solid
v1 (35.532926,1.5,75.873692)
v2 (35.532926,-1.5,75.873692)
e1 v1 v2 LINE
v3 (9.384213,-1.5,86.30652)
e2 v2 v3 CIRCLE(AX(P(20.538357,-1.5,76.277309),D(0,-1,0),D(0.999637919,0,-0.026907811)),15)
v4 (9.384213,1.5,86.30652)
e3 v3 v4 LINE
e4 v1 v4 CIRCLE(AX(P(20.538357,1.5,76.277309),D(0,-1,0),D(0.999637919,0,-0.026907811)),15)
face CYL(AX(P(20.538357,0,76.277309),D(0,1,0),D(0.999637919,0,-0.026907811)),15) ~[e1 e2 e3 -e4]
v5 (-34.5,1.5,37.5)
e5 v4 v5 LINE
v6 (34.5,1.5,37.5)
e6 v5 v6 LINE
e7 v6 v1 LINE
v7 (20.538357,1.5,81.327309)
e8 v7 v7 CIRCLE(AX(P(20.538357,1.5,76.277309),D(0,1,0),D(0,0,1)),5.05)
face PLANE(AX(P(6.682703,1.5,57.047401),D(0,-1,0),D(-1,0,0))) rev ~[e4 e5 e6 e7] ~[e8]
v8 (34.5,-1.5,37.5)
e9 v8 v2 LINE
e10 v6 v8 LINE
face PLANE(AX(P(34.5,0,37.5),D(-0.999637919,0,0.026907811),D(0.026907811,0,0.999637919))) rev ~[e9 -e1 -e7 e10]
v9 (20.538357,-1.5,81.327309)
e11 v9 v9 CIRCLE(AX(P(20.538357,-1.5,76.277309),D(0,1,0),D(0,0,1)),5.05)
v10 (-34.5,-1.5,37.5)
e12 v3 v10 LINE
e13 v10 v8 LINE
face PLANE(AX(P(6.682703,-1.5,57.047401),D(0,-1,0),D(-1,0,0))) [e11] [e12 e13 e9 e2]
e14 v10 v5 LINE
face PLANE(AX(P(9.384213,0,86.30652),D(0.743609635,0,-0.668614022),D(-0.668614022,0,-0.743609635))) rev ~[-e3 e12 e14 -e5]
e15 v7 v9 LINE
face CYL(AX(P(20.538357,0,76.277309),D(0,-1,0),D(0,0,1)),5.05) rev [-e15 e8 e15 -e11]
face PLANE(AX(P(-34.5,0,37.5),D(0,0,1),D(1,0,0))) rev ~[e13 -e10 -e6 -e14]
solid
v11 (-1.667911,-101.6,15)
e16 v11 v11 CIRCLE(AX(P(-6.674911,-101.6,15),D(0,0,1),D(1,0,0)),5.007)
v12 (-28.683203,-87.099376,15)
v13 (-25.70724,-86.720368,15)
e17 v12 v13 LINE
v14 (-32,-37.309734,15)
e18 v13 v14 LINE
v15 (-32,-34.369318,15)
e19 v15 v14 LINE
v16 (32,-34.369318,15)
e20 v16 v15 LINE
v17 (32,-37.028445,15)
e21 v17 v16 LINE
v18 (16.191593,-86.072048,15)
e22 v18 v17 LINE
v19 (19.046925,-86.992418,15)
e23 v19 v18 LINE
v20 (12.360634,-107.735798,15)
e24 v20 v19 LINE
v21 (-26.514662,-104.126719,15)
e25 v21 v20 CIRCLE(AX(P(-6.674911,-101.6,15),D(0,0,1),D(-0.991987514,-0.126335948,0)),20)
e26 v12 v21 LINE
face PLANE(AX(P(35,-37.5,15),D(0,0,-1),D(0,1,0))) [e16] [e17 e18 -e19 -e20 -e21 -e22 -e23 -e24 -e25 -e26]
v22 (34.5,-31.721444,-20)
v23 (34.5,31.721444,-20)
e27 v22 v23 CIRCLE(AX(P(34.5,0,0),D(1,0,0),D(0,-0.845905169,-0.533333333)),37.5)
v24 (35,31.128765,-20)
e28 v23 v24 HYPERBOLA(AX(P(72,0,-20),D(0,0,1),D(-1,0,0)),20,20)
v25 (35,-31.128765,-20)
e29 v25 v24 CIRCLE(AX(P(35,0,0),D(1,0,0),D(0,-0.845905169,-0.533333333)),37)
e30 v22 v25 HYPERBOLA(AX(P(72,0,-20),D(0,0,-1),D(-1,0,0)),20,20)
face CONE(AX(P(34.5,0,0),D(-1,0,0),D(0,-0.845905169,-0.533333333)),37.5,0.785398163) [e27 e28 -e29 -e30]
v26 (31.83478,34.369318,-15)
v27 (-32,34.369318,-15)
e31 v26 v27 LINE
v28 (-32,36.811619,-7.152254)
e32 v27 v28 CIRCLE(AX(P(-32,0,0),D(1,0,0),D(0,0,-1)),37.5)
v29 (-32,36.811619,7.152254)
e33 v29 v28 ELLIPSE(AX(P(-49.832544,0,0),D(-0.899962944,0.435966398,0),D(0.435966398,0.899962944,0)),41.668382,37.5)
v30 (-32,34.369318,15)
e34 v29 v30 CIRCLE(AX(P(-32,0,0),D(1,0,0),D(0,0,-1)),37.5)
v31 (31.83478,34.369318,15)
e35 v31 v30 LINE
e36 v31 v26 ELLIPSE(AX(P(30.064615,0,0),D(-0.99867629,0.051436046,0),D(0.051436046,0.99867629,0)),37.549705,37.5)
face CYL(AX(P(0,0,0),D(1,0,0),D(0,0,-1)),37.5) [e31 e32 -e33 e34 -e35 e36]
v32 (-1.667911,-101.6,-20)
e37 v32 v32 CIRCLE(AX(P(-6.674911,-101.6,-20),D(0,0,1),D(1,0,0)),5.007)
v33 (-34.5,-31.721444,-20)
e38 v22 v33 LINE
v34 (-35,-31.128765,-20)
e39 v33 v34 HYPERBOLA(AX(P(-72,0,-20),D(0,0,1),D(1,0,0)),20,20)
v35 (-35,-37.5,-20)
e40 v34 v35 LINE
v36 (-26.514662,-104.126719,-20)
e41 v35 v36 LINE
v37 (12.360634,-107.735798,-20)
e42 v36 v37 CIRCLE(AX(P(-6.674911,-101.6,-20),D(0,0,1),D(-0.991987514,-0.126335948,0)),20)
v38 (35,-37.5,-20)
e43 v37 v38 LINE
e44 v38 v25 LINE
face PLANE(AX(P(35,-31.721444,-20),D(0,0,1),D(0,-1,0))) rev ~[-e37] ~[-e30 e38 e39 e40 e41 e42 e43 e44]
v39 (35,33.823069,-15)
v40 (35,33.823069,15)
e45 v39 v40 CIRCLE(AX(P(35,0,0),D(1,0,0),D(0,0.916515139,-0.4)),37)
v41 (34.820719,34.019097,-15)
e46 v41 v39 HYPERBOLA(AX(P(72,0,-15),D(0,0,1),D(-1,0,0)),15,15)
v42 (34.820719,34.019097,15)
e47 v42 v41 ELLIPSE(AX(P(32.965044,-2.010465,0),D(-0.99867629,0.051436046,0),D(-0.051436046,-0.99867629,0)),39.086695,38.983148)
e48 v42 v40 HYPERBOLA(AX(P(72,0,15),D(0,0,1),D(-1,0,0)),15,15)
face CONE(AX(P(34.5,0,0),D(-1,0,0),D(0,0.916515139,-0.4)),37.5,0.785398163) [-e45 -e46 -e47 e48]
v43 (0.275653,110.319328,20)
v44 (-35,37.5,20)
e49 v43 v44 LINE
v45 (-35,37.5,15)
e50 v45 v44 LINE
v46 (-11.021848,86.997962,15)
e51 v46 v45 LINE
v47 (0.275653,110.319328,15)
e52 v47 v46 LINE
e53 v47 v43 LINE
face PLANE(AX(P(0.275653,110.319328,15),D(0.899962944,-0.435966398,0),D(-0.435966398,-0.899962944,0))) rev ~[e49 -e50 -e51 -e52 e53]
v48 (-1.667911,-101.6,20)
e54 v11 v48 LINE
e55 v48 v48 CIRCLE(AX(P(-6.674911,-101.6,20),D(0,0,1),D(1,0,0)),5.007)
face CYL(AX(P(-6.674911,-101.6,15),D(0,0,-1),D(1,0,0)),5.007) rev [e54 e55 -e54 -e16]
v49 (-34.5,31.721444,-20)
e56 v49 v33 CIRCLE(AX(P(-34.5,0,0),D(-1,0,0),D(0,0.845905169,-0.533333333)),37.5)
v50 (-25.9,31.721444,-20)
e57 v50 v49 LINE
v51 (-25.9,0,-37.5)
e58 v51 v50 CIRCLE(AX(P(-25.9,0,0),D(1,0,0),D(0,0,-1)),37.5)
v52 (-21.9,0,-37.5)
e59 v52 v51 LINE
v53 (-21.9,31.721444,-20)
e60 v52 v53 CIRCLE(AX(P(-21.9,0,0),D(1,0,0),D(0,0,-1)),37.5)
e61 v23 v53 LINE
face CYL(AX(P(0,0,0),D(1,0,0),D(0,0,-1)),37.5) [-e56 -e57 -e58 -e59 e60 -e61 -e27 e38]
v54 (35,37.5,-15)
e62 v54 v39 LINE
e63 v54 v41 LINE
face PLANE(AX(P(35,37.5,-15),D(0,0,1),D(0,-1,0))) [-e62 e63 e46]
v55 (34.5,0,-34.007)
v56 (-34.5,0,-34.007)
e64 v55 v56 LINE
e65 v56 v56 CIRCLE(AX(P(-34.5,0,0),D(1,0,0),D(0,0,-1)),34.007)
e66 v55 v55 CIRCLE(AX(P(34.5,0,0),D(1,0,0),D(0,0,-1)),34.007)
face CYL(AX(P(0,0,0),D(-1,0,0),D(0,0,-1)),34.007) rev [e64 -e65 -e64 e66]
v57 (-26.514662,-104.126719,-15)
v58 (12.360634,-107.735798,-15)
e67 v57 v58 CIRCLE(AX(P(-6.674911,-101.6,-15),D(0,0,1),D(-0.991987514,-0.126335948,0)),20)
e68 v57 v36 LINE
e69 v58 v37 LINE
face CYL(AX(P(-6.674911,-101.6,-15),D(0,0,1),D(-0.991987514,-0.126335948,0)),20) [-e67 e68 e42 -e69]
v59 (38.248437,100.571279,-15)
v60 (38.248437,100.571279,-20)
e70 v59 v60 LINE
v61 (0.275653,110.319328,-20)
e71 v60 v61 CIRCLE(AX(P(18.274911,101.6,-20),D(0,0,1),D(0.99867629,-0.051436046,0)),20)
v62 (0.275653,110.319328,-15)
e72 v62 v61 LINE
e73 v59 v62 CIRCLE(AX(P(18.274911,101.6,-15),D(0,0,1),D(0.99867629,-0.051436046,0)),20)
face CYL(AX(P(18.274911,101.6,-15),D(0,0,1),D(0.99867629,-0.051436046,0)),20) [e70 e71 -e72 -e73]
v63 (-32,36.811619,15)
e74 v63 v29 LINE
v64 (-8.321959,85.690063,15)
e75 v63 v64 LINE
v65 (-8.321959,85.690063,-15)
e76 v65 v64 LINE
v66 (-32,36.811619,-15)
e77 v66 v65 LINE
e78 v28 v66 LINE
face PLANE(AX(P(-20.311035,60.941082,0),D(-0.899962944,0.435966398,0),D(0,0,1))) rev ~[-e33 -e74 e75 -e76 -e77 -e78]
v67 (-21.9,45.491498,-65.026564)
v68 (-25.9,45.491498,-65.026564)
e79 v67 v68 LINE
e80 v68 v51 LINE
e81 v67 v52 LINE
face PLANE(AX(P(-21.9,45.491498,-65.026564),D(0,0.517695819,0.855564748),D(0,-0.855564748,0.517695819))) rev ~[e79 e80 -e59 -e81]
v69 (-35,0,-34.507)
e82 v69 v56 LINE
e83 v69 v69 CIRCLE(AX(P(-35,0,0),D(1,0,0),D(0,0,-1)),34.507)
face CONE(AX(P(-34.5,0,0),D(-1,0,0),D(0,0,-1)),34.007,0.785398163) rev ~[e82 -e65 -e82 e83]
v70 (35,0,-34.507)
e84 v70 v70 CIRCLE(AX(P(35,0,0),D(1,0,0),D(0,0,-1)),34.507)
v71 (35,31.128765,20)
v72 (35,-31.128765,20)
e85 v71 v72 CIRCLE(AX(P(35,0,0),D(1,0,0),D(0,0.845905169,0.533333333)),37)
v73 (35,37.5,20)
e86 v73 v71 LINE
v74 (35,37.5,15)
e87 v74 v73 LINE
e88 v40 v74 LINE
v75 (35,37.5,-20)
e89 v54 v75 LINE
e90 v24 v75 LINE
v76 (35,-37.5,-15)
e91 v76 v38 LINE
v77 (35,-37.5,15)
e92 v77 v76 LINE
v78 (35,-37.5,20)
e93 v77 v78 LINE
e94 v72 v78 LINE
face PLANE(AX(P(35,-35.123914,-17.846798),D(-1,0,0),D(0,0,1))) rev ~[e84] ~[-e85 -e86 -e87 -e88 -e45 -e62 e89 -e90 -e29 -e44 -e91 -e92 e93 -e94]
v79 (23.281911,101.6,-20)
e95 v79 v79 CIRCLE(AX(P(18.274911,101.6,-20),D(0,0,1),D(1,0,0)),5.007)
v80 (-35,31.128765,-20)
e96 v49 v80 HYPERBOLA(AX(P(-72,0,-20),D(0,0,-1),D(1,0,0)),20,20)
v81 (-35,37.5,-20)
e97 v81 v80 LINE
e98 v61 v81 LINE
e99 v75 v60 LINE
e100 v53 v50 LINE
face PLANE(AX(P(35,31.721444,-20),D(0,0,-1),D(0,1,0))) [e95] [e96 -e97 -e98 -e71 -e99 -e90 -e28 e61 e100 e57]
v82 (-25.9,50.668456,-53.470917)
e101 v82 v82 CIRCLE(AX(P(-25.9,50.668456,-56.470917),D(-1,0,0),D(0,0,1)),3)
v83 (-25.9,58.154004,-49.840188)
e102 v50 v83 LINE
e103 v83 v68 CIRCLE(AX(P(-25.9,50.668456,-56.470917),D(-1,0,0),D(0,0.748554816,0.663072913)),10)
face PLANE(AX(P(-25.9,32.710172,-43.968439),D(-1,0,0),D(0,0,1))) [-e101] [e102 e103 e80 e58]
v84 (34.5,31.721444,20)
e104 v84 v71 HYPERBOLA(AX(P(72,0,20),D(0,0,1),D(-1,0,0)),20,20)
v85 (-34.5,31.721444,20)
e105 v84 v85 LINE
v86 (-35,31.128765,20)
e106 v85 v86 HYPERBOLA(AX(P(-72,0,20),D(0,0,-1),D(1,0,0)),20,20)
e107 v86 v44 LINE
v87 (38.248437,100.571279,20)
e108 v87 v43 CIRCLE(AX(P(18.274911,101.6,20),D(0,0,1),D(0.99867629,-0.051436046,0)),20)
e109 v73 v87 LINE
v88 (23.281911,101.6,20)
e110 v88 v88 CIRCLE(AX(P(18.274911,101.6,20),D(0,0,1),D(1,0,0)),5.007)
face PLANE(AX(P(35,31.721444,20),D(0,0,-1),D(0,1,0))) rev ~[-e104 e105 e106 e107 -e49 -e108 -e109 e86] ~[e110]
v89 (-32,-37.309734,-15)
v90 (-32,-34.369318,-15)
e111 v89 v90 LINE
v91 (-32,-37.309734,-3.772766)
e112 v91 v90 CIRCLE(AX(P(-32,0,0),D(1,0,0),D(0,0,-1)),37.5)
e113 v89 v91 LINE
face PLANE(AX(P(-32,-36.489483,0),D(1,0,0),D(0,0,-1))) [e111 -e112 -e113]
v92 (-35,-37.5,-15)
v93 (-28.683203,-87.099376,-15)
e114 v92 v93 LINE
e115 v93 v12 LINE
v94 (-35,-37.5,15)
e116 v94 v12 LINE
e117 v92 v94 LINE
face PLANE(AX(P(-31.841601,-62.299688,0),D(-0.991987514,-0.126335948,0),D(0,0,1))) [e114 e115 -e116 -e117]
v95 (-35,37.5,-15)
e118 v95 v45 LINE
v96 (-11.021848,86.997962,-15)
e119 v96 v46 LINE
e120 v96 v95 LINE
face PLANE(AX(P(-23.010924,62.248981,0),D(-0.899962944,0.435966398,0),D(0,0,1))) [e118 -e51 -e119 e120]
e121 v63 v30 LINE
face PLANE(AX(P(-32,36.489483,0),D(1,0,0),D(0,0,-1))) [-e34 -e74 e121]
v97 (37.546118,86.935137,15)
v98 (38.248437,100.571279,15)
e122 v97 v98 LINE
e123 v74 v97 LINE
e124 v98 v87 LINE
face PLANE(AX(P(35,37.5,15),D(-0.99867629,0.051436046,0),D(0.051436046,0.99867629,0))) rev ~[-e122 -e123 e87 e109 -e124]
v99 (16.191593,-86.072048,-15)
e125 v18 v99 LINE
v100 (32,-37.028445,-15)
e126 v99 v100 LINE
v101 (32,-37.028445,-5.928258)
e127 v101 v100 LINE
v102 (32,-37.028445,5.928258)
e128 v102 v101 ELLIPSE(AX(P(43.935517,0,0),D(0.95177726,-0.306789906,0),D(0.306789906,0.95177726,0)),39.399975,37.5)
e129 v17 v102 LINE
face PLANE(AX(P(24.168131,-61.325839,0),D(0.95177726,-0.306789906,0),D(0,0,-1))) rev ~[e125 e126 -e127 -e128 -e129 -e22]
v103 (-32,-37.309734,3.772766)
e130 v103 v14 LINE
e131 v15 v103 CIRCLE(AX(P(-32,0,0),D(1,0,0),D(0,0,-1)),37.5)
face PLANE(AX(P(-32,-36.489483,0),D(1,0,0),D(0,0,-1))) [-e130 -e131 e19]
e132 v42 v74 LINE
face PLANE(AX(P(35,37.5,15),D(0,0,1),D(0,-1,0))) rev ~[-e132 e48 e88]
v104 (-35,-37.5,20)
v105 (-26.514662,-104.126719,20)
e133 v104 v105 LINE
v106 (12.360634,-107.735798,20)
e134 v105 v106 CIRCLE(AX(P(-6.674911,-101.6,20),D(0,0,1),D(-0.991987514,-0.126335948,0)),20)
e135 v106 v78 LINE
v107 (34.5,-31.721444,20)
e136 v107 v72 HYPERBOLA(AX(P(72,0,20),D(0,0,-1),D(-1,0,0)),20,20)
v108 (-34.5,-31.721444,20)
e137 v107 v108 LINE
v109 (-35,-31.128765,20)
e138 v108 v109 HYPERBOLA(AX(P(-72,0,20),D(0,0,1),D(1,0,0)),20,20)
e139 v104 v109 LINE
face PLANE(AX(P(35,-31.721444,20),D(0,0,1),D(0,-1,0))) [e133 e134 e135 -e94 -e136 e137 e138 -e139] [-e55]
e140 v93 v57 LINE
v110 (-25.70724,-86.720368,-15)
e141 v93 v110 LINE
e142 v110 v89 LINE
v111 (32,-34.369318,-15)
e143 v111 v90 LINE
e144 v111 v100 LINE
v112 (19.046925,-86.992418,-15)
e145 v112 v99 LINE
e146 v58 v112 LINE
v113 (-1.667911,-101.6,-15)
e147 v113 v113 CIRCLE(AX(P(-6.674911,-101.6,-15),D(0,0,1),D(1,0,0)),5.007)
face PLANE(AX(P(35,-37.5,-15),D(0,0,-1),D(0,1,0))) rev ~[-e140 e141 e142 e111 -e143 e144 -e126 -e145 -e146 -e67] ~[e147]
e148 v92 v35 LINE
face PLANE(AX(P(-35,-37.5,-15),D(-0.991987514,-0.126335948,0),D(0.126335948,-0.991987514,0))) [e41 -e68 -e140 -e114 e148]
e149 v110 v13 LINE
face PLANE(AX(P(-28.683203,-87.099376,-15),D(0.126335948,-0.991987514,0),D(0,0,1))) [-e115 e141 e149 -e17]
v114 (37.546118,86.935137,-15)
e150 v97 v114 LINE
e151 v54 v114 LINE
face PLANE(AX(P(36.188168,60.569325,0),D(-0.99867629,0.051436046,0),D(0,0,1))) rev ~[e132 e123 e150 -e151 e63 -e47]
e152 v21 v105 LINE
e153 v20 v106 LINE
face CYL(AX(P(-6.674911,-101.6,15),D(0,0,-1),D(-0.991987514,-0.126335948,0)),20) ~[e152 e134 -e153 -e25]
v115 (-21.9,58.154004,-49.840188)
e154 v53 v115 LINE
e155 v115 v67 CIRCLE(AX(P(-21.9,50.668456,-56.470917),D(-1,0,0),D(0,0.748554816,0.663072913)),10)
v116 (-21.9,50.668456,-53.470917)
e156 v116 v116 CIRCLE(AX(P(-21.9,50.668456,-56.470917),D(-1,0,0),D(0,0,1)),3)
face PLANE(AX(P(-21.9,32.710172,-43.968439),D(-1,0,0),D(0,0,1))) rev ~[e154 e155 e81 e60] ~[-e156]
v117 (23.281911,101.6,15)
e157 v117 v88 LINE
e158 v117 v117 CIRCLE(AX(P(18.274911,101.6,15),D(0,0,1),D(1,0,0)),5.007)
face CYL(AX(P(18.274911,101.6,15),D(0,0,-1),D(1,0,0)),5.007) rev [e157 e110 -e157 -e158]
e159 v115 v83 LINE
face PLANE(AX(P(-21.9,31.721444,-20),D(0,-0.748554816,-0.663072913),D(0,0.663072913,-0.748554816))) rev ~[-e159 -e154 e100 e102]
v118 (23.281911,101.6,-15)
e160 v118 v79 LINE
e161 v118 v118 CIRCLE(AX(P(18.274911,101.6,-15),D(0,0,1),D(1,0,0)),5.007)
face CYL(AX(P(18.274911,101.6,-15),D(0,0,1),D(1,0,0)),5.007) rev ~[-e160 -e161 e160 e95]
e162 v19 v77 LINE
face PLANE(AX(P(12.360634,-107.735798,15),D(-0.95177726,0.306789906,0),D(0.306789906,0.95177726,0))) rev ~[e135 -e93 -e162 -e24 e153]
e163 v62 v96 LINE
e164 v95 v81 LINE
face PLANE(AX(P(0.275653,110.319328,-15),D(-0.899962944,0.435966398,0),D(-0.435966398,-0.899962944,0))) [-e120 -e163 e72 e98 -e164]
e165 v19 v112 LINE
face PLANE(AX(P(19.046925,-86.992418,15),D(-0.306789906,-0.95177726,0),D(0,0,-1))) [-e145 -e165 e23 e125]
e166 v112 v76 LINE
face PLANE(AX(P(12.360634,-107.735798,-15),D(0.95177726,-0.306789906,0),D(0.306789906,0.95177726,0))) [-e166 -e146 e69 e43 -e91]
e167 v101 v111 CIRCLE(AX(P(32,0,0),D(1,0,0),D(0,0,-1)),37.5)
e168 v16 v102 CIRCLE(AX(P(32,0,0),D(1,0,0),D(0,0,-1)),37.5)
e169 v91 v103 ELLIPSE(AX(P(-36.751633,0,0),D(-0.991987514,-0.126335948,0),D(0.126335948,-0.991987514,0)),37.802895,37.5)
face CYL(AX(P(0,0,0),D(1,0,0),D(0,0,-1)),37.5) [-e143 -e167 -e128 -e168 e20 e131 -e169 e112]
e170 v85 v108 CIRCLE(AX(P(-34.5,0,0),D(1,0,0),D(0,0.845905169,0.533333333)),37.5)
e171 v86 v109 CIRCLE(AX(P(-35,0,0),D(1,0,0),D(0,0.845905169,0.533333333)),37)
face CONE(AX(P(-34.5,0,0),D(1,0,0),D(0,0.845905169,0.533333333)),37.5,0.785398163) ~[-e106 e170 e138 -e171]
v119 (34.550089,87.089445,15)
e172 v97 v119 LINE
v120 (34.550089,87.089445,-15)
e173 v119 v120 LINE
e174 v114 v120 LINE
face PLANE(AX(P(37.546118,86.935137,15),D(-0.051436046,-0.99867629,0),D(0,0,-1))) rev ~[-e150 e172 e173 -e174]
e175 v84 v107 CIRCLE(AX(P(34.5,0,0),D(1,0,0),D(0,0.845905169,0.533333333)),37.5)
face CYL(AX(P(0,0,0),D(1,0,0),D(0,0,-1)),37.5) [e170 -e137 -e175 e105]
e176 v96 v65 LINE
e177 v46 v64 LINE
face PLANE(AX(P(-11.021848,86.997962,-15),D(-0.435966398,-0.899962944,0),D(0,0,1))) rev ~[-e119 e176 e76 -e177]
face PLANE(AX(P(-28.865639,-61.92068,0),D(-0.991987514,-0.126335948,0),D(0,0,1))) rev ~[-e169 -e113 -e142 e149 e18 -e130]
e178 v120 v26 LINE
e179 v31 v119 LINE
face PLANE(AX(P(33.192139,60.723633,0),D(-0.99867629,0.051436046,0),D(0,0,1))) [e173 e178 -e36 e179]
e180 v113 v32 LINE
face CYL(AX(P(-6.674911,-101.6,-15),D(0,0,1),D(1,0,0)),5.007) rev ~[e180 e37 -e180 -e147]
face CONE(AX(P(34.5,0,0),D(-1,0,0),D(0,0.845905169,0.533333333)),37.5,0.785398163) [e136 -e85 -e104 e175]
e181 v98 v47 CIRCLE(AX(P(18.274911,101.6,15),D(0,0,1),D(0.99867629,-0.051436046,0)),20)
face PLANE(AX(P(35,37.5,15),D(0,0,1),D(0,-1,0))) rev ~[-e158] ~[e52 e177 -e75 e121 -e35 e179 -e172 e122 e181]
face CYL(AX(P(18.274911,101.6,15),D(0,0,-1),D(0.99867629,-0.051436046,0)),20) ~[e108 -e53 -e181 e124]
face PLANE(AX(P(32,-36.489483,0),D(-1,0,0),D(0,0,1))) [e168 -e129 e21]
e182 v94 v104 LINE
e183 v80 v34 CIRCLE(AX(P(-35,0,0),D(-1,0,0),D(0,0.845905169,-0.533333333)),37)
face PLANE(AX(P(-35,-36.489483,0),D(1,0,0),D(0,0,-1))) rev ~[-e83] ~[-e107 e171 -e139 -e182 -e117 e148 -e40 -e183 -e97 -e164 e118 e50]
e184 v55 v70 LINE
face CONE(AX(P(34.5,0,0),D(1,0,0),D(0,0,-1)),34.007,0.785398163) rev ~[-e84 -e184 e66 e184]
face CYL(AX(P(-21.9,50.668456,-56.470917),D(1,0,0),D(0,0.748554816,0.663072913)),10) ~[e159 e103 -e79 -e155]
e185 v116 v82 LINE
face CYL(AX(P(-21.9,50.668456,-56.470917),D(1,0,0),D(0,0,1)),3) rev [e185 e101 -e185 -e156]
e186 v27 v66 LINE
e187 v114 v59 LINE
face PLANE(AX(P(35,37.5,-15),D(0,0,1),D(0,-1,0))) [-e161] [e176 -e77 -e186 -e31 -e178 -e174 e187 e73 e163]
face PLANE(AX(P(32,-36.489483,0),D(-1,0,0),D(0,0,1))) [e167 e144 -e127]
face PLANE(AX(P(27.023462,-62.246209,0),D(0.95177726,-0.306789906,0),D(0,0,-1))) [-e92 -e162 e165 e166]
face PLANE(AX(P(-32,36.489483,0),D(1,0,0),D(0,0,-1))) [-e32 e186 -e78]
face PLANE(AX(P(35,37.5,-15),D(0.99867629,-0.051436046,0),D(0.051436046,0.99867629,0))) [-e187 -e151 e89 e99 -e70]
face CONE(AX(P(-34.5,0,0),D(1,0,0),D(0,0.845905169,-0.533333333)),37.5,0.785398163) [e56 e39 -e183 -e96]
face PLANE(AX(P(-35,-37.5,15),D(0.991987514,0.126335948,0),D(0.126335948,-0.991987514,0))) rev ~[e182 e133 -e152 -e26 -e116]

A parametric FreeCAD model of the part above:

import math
import FreeCAD as App
import Part
import Sketcher
Q = App.Units.Quantity


def edges_at(feature, points):
    """Names of the edges that pass closest to the given points."""
    edges = feature.Shape.Edges
    near = lambda p: min(range(len(edges)), key=lambda i: edges[i].distToShape(Part.Vertex(*p))[0])
    return sorted({f"Edge{near(p) + 1}" for p in points})

doc = App.newDocument("Part")
body = doc.addObject("PartDesign::Body", "Body")

# Sketch on YZ plane
sketch1 = body.newObject("Sketcher::SketchObject", "Sketch")
sketch1.AttachmentSupport = (doc.getObject("YZ_Plane"), [""])
sketch1.MapMode = "FlatFace"
sketch1.addGeometry([
    Part.Circle(App.Vector(0, 0, 0), App.Vector(0, 0, 1), 38),
    Part.Circle(App.Vector(0, 0, 0), App.Vector(0, 0, 1), 34),
], False)
sketch1.addConstraint([
    Sketcher.Constraint("Coincident", 0, 3, -1, 1),
    Sketcher.Constraint("Coincident", 1, 3, -1, 1),
    Sketcher.Constraint("Diameter", 0, Q("75 mm")),
    Sketcher.Constraint("Diameter", 1, Q("68.014 mm")),
])
pad1 = body.newObject("PartDesign::Pad", "Pad")
pad1.Profile = sketch1
pad1.Length = 70
pad1.Midplane = True
body2 = doc.addObject("PartDesign::Body", "Body001")

# Sketch on XY plane
sketch2 = body2.newObject("Sketcher::SketchObject", "Sketch001")
sketch2.AttachmentSupport = (doc.getObject("XY_Plane001"), [""])
sketch2.MapMode = "FlatFace"
sketch2.AttachmentOffset = App.Placement(App.Vector(0, 0, 15), App.Rotation())
sketch2.addGeometry([
    Part.LineSegment(App.Vector(0, 110, 0), App.Vector(-35, 38, 0)),  # 0
    Part.LineSegment(App.Vector(-35, 38, 0), App.Vector(35, 38, 0)),  # 1
    Part.LineSegment(App.Vector(35, 38, 0), App.Vector(38, 101, 0)),  # 2
    Part.ArcOfCircle(Part.Circle(App.Vector(18, 102, 0), App.Vector(0, 0, 1), 20), math.radians(-3), math.radians(154)),  # 3
    Part.Circle(App.Vector(18, 102, 0), App.Vector(0, 0, 1), 5),  # 4
], False)
sketch2.addConstraint([
    Sketcher.Constraint("Coincident", 0, 2, 1, 1),
    Sketcher.Constraint("Coincident", 1, 2, 2, 1),
    Sketcher.Constraint("Tangent", 2, 2, 3, 1),
    Sketcher.Constraint("Tangent", 3, 2, 0, 1),
    Sketcher.Constraint("Horizontal", 1),
    Sketcher.Constraint("Coincident", 4, 3, 3, 3),
    Sketcher.Constraint("Radius", 3, Q("20 mm")),
    Sketcher.Constraint("DistanceX", 1, 1, 1, 2, Q("70 mm")),
    Sketcher.Constraint("Diameter", 4, Q("10.014 mm")),
    Sketcher.Constraint("DistanceX", 0, 2, -1, 1, Q("35 mm")),
    Sketcher.Constraint("DistanceY", -1, 1, 3, 3, Q("101.6 mm")),
    Sketcher.Constraint("DistanceY", -1, 1, 0, 2, Q("37.5 mm")),
    Sketcher.Constraint("DistanceX", -1, 1, 3, 3, Q("18.274911 mm")),
])
pad2 = body2.newObject("PartDesign::Pad", "Pad001")
pad2.Profile = sketch2
pad2.Length = 5
body3 = doc.addObject("PartDesign::Body", "Body002")

# Sketch on XY plane
sketch3 = body3.newObject("Sketcher::SketchObject", "Sketch002")
sketch3.AttachmentSupport = (doc.getObject("XY_Plane002"), [""])
sketch3.MapMode = "FlatFace"
sketch3.AttachmentOffset = App.Placement(App.Vector(0, 0, 15), App.Rotation())
sketch3.addGeometry([
    Part.LineSegment(App.Vector(-35, -38, 0), App.Vector(-27, -104, 0)),  # 0
    Part.ArcOfCircle(Part.Circle(App.Vector(-7, -102, 0), App.Vector(0, 0, 1), 20), math.radians(-173), math.radians(-18)),  # 1
    Part.LineSegment(App.Vector(12, -108, 0), App.Vector(35, -38, 0)),  # 2
    Part.LineSegment(App.Vector(35, -38, 0), App.Vector(-35, -38, 0)),  # 3
    Part.Circle(App.Vector(-7, -102, 0), App.Vector(0, 0, 1), 5),  # 4
], False)
sketch3.addConstraint([
    Sketcher.Constraint("Tangent", 0, 2, 1, 1),
    Sketcher.Constraint("Tangent", 1, 2, 2, 1),
    Sketcher.Constraint("Coincident", 2, 2, 3, 1),
    Sketcher.Constraint("Coincident", 3, 2, 0, 1),
    Sketcher.Constraint("Horizontal", 3),
    Sketcher.Constraint("Coincident", 4, 3, 1, 3),
    Sketcher.Constraint("Radius", 1, Q("20 mm")),
    Sketcher.Constraint("DistanceX", 3, 2, 3, 1, Q("70 mm")),
    Sketcher.Constraint("Diameter", 4, Q("10.014 mm")),
    Sketcher.Constraint("DistanceX", -1, 1, 2, 2, Q("35 mm")),
    Sketcher.Constraint("DistanceY", 1, 3, -1, 1, Q("101.6 mm")),
    Sketcher.Constraint("DistanceY", 2, 2, -1, 1, Q("37.5 mm")),
    Sketcher.Constraint("DistanceY", 1, 2, -1, 1, Q("107.735798 mm")),
])
pad3 = body3.newObject("PartDesign::Pad", "Pad002")
pad3.Profile = sketch3
pad3.Length = 5
body4 = doc.addObject("PartDesign::Body", "Body003")

# Sketch on XY plane
sketch4 = body4.newObject("Sketcher::SketchObject", "Sketch003")
sketch4.AttachmentSupport = (doc.getObject("XY_Plane003"), [""])
sketch4.MapMode = "FlatFace"
sketch4.AttachmentOffset = App.Placement(App.Vector(0, 0, -15), App.Rotation())
sketch4.addGeometry([
    Part.LineSegment(App.Vector(35, -38, 0), App.Vector(-35, -38, 0)),  # 0
    Part.LineSegment(App.Vector(-35, -38, 0), App.Vector(-27, -104, 0)),  # 1
    Part.ArcOfCircle(Part.Circle(App.Vector(-7, -102, 0), App.Vector(0, 0, 1), 20), math.radians(-173), math.radians(-18)),  # 2
    Part.LineSegment(App.Vector(12, -108, 0), App.Vector(35, -38, 0)),  # 3
    Part.Circle(App.Vector(-7, -102, 0), App.Vector(0, 0, 1), 5),  # 4
], False)
sketch4.addConstraint([
    Sketcher.Constraint("Coincident", 0, 2, 1, 1),
    Sketcher.Constraint("Tangent", 1, 2, 2, 1),
    Sketcher.Constraint("Tangent", 2, 2, 3, 1),
    Sketcher.Constraint("Coincident", 3, 2, 0, 1),
    Sketcher.Constraint("Horizontal", 0),
    Sketcher.Constraint("Coincident", 4, 3, 2, 3),
    Sketcher.Constraint("Radius", 2, Q("20 mm")),
    Sketcher.Constraint("DistanceX", 0, 2, 0, 1, Q("70 mm")),
    Sketcher.Constraint("Diameter", 4, Q("10.014 mm")),
    Sketcher.Constraint("DistanceX", 0, 2, -1, 1, Q("35 mm")),
    Sketcher.Constraint("DistanceY", 2, 3, -1, 1, Q("101.6 mm")),
    Sketcher.Constraint("DistanceY", 0, 2, -1, 1, Q("37.5 mm")),
    Sketcher.Constraint("DistanceY", 2, 2, -1, 1, Q("107.735798 mm")),
])
pad4 = body4.newObject("PartDesign::Pad", "Pad003")
pad4.Profile = sketch4
pad4.Length = 5
pad4.Reversed = True
body5 = doc.addObject("PartDesign::Body", "Body004")

# Sketch on XY plane
sketch5 = body5.newObject("Sketcher::SketchObject", "Sketch004")
sketch5.AttachmentSupport = (doc.getObject("XY_Plane004"), [""])
sketch5.MapMode = "FlatFace"
sketch5.AttachmentOffset = App.Placement(App.Vector(0, 0, -15), App.Rotation())
sketch5.addGeometry([
    Part.LineSegment(App.Vector(35, 38, 0), App.Vector(38, 101, 0)),  # 0
    Part.ArcOfCircle(Part.Circle(App.Vector(18, 102, 0), App.Vector(0, 0, 1), 20), math.radians(-3), math.radians(154)),  # 1
    Part.LineSegment(App.Vector(0, 110, 0), App.Vector(-35, 38, 0)),  # 2
    Part.LineSegment(App.Vector(-35, 38, 0), App.Vector(35, 38, 0)),  # 3
    Part.Circle(App.Vector(18, 102, 0), App.Vector(0, 0, 1), 5),  # 4
], False)
sketch5.addConstraint([
    Sketcher.Constraint("Tangent", 0, 2, 1, 1),
    Sketcher.Constraint("Tangent", 1, 2, 2, 1),
    Sketcher.Constraint("Coincident", 2, 2, 3, 1),
    Sketcher.Constraint("Coincident", 3, 2, 0, 1),
    Sketcher.Constraint("Horizontal", 3),
    Sketcher.Constraint("Coincident", 4, 3, 1, 3),
    Sketcher.Constraint("Radius", 1, Q("20 mm")),
    Sketcher.Constraint("DistanceX", 3, 1, 3, 2, Q("70 mm")),
    Sketcher.Constraint("Diameter", 4, Q("10.014 mm")),
    Sketcher.Constraint("DistanceX", 2, 2, -1, 1, Q("35 mm")),
    Sketcher.Constraint("DistanceY", -1, 1, 1, 3, Q("101.6 mm")),
    Sketcher.Constraint("DistanceY", -1, 1, 2, 2, Q("37.5 mm")),
    Sketcher.Constraint("DistanceX", -1, 1, 1, 3, Q("18.274911 mm")),
])
pad5 = body5.newObject("PartDesign::Pad", "Pad004")
pad5.Profile = sketch5
pad5.Length = 5
pad5.Reversed = True
body.AllowCompound = True
doc.recompute()

boolean = body.newObject("PartDesign::Boolean", "Boolean")
boolean.Type = "Fuse"
boolean.addObjects([body2])
doc.recompute()

boolean2 = body.newObject("PartDesign::Boolean", "Boolean001")
boolean2.Type = "Fuse"
boolean2.addObjects([body3])
doc.recompute()

boolean3 = body.newObject("PartDesign::Boolean", "Boolean002")
boolean3.Type = "Fuse"
boolean3.addObjects([body4])
doc.recompute()

boolean4 = body.newObject("PartDesign::Boolean", "Boolean003")
boolean4.Type = "Fuse"
boolean4.addObjects([body5])

# Sketch on YZ plane
sketch6 = body.newObject("Sketcher::SketchObject", "Sketch005")
sketch6.AttachmentSupport = (doc.getObject("YZ_Plane"), [""])
sketch6.MapMode = "FlatFace"
sketch6.AttachmentOffset = App.Placement(App.Vector(0, 0, 35), App.Rotation())
sketch6.addGeometry([
    Part.LineSegment(App.Vector(-37.5, -15, 0), App.Vector(-37.5, -20, 0)),  # 0
    Part.LineSegment(App.Vector(-37.5, -20, 0), App.Vector(-31.7, -20, 0)),  # 1
    Part.ArcOfCircle(Part.Circle(App.Vector(0, 0, 0), App.Vector(0, 0, 1), 37.5), math.radians(-156.42), math.radians(-147.77)),  # 2
    Part.LineSegment(App.Vector(-34.4, -15, 0), App.Vector(-37.5, -15, 0)),  # 3
    Part.LineSegment(App.Vector(-37.5, 20, 0), App.Vector(-37.5, 15, 0)),  # 4
    Part.LineSegment(App.Vector(-37.5, 15, 0), App.Vector(-34.4, 15, 0)),  # 5
    Part.ArcOfCircle(Part.Circle(App.Vector(0, 0, 0), App.Vector(0, 0, 1), 37.5), math.radians(147.77), math.radians(156.42)),  # 6
    Part.LineSegment(App.Vector(-31.7, 20, 0), App.Vector(-37.5, 20, 0)),  # 7
    Part.LineSegment(App.Vector(37.5, -20, 0), App.Vector(37.5, -15, 0)),  # 8
    Part.LineSegment(App.Vector(37.5, -15, 0), App.Vector(34.4, -15, 0)),  # 9
    Part.ArcOfCircle(Part.Circle(App.Vector(0, 0, 0), App.Vector(0, 0, 1), 37.5), math.radians(-32.23), math.radians(-23.58)),  # 10
    Part.LineSegment(App.Vector(31.7, -20, 0), App.Vector(37.5, -20, 0)),  # 11
    Part.LineSegment(App.Vector(37.5, 15, 0), App.Vector(37.5, 20, 0)),  # 12
    Part.LineSegment(App.Vector(37.5, 20, 0), App.Vector(31.7, 20, 0)),  # 13
    Part.ArcOfCircle(Part.Circle(App.Vector(0, 0, 0), App.Vector(0, 0, 1), 37.5), math.radians(23.58), math.radians(32.23)),  # 14
    Part.LineSegment(App.Vector(34.4, 15, 0), App.Vector(37.5, 15, 0)),  # 15
], False)
sketch6.addConstraint([
    Sketcher.Constraint("Coincident", 0, 2, 1, 1),
    Sketcher.Constraint("Coincident", 1, 2, 2, 2),
    Sketcher.Constraint("Coincident", 2, 1, 3, 1),
    Sketcher.Constraint("Coincident", 3, 2, 0, 1),
    Sketcher.Constraint("Coincident", 4, 2, 5, 1),
    Sketcher.Constraint("Coincident", 5, 2, 6, 2),
    Sketcher.Constraint("Coincident", 6, 1, 7, 1),
    Sketcher.Constraint("Coincident", 7, 2, 4, 1),
    Sketcher.Constraint("Coincident", 8, 2, 9, 1),
    Sketcher.Constraint("Coincident", 9, 2, 10, 2),
    Sketcher.Constraint("Coincident", 10, 1, 11, 1),
    Sketcher.Constraint("Coincident", 11, 2, 8, 1),
    Sketcher.Constraint("Coincident", 12, 2, 13, 1),
    Sketcher.Constraint("Coincident", 13, 2, 14, 2),
    Sketcher.Constraint("Coincident", 14, 1, 15, 1),
    Sketcher.Constraint("Coincident", 15, 2, 12, 1),
    Sketcher.Constraint("Vertical", 0),
    Sketcher.Constraint("Horizontal", 1),
    Sketcher.Constraint("Horizontal", 3),
    Sketcher.Constraint("Vertical", 4),
    Sketcher.Constraint("Horizontal", 5),
    Sketcher.Constraint("Horizontal", 7),
    Sketcher.Constraint("Vertical", 8),
    Sketcher.Constraint("Horizontal", 9),
    Sketcher.Constraint("Horizontal", 11),
    Sketcher.Constraint("Vertical", 12),
    Sketcher.Constraint("Horizontal", 13),
    Sketcher.Constraint("Horizontal", 15),
    Sketcher.Constraint("Coincident", 2, 3, -1, 1),
    Sketcher.Constraint("Coincident", 6, 3, -1, 1),
    Sketcher.Constraint("Coincident", 10, 3, -1, 1),
    Sketcher.Constraint("Coincident", 14, 3, -1, 1),
    Sketcher.Constraint("Equal", 2, 6),
    Sketcher.Constraint("Equal", 6, 10),
    Sketcher.Constraint("Equal", 10, 14),
    Sketcher.Constraint("Symmetric", 4, 2, 8, 2, -1, 1),
    Sketcher.Constraint("Symmetric", 0, 2, 12, 2, -1, 1),
    Sketcher.Constraint("Symmetric", 3, 2, 8, 2, -2),
    Sketcher.Constraint("Horizontal", 1, 2, 10, 1),
    Sketcher.Constraint("Horizontal", 7, 2, 12, 2),
    Sketcher.Constraint("Horizontal", 5, 2, 14, 1),
    Sketcher.Constraint("Radius", 2, Q("37.5 mm")),
    Sketcher.Constraint("DistanceY", 0, 2, 0, 1, Q("5 mm")),
    Sketcher.Constraint("DistanceY", 0, 2, -1, 1, Q("20 mm")),
    Sketcher.Constraint("DistanceX", 0, 2, -1, 1, Q("37.5 mm")),
])
pad6 = body.newObject("PartDesign::Pad", "Pad005")
pad6.Profile = sketch6
pad6.Length = 70
pad6.Reversed = True
doc.recompute()

chamfer = body.newObject("PartDesign::Chamfer", "Chamfer")
chamfer.Base = (pad6, edges_at(pad6, [
    (35, -37.5, 0),
    (35, 37.5, 0),
    (35, 0, 34.007),
    (35, 0, 37.5),
    (35, 0, -37.5),
]))
chamfer.Size = 0.5
doc.recompute()

chamfer2 = body.newObject("PartDesign::Chamfer", "Chamfer001")
chamfer2.Base = (chamfer, edges_at(chamfer, [
    (-35, 0, -37.5),
    (-35, -37.5, 0),
    (-35, 37.5, 0),
    (-35, 0, 34.007),
    (-35, 0, 37.5),
]))
chamfer2.Size = 0.5

# Sketch on an angled plane
sketch7 = body.newObject("Sketcher::SketchObject", "Sketch006")
sketch7.Placement = App.Placement(App.Vector(32.981103, -1.698666, 0), App.Rotation(App.Vector(0, 0, -1), App.Vector(0.051436046, 0.99867629, 0), App.Vector(0.99867629, -0.051436046, 0), "ZXY"))
sketch7.addGeometry([
    Part.LineSegment(App.Vector(15, 88.751284, 0), App.Vector(-15, 88.751284, 0)),
    Part.LineSegment(App.Vector(-15, 88.751284, 0), App.Vector(-15, 35.578559, 0)),
    Part.BSplineCurve([App.Vector(15, 35.578559, 0), App.Vector(0, 42.222017, 0), App.Vector(-15, 35.578559, 0)], [3, 3], [1.153374055, 1.988218598], False, 2, [1, 0.914137001, 1], False),
    Part.LineSegment(App.Vector(15, 35.578559, 0), App.Vector(15, 88.751284, 0)),
], False)
sketch7.addConstraint([
    Sketcher.Constraint("Block", 2),
    Sketcher.Constraint("Coincident", 0, 2, 1, 1),
    Sketcher.Constraint("Coincident", 1, 2, 2, 2),
    Sketcher.Constraint("Coincident", 2, 1, 3, 1),
    Sketcher.Constraint("Coincident", 3, 2, 0, 1),
    Sketcher.Constraint("Horizontal", 0),
    Sketcher.Constraint("Vertical", 1),
    Sketcher.Constraint("Vertical", 3),
    Sketcher.Constraint("DistanceY", 1, 2, 1, 1, Q("53.172726 mm")),
])
pad7 = body.newObject("PartDesign::Pad", "Pad006")
pad7.Profile = sketch7
pad7.Length = 3
pad7.Reversed = True

# Sketch on an angled plane
sketch8 = body.newObject("Sketcher::SketchObject", "Sketch007")
sketch8.Placement = App.Placement(App.Vector(-43.060926, 20.859877, 0), App.Rotation(App.Vector(0, 0, 1), App.Vector(0.435966398, 0.899962944, 0), App.Vector(-0.899962944, 0.435966398, 0), "ZXY"))
sketch8.addGeometry([
    Part.LineSegment(App.Vector(-15, 73, 0), App.Vector(-15, 18, 0)),
    Part.LineSegment(App.Vector(-15, 18, 0), App.Vector(15, 18, 0)),
    Part.LineSegment(App.Vector(15, 18, 0), App.Vector(15, 73, 0)),
    Part.LineSegment(App.Vector(15, 73, 0), App.Vector(-15, 73, 0)),
], False)
sketch8.addConstraint([
    Sketcher.Constraint("Coincident", 0, 2, 1, 1),
    Sketcher.Constraint("Coincident", 1, 2, 2, 1),
    Sketcher.Constraint("Coincident", 2, 2, 3, 1),
    Sketcher.Constraint("Coincident", 3, 2, 0, 1),
    Sketcher.Constraint("Vertical", 0),
    Sketcher.Constraint("Horizontal", 1),
    Sketcher.Constraint("Vertical", 2),
    Sketcher.Constraint("Horizontal", 3),
    Sketcher.Constraint("DistanceX", 1, 1, 1, 2, Q("30 mm")),
    Sketcher.Constraint("DistanceY", 0, 2, 0, 1, Q("55 mm")),
    Sketcher.Constraint("DistanceX", 0, 2, -1, 1, Q("15 mm")),
    Sketcher.Constraint("DistanceY", -1, 1, 0, 2, Q("18.489786 mm")),
])
pad8 = body.newObject("PartDesign::Pad", "Pad007")
pad8.Profile = sketch8
pad8.Length = 3
pad8.Reversed = True

# Sketch on YZ plane
sketch9 = body.newObject("Sketcher::SketchObject", "Sketch008")
sketch9.AttachmentSupport = (doc.getObject("YZ_Plane"), [""])
sketch9.MapMode = "FlatFace"
sketch9.AttachmentOffset = App.Placement(App.Vector(0, 0, -35), App.Rotation())
sketch9.addGeometry([
    Part.LineSegment(App.Vector(33.8, 15, 0), App.Vector(37.5, 15, 0)),
    Part.LineSegment(App.Vector(37.5, 15, 0), App.Vector(37.5, -15, 0)),
    Part.LineSegment(App.Vector(37.5, -15, 0), App.Vector(33.8, -15, 0)),
    Part.ArcOfCircle(Part.Circle(App.Vector(0, 0, 0), App.Vector(0, 0, 1), 37), math.radians(-24), math.radians(24)),
], False)
sketch9.addConstraint([
    Sketcher.Constraint("Coincident", 0, 2, 1, 1),
    Sketcher.Constraint("Coincident", 1, 2, 2, 1),
    Sketcher.Constraint("Coincident", 2, 2, 3, 1),
    Sketcher.Constraint("Coincident", 3, 2, 0, 1),
    Sketcher.Constraint("Horizontal", 0),
    Sketcher.Constraint("Vertical", 1),
    Sketcher.Constraint("Horizontal", 2),
    Sketcher.Constraint("Coincident", 3, 3, -1, 1),
    Sketcher.Constraint("Vertical", 2, 2, 3, 2),
    Sketcher.Constraint("Radius", 3, Q("37 mm")),
    Sketcher.Constraint("DistanceY", 1, 2, 1, 1, Q("30 mm")),
    Sketcher.Constraint("DistanceX", -1, 1, 0, 2, Q("37.5 mm")),
])
pad9 = body.newObject("PartDesign::Pad", "Pad008")
pad9.Profile = sketch9
pad9.Length = 3

# Sketch on an angled plane
sketch10 = body.newObject("Sketcher::SketchObject", "Sketch009")
sketch10.Placement = App.Placement(App.Vector(-39.141011, -4.984858, 0), App.Rotation(App.Vector(0, 0, 1), App.Vector(-0.126335948, 0.991987514, 0), App.Vector(-0.991987514, -0.126335948, 0), "ZXY"))
sketch10.addGeometry([
    Part.LineSegment(App.Vector(-15, -33, 0), App.Vector(-15, -83, 0)),
    Part.LineSegment(App.Vector(-15, -83, 0), App.Vector(15, -83, 0)),
    Part.LineSegment(App.Vector(15, -83, 0), App.Vector(15, -33, 0)),
    Part.LineSegment(App.Vector(15, -33, 0), App.Vector(-15, -33, 0)),
], False)
sketch10.addConstraint([
    Sketcher.Constraint("Coincident", 0, 2, 1, 1),
    Sketcher.Constraint("Coincident", 1, 2, 2, 1),
    Sketcher.Constraint("Coincident", 2, 2, 3, 1),
    Sketcher.Constraint("Coincident", 3, 2, 0, 1),
    Sketcher.Constraint("Vertical", 0),
    Sketcher.Constraint("Horizontal", 1),
    Sketcher.Constraint("Vertical", 2),
    Sketcher.Constraint("Horizontal", 3),
    Sketcher.Constraint("DistanceX", 1, 1, 1, 2, Q("30 mm")),
    Sketcher.Constraint("DistanceY", 0, 2, 0, 1, Q("50 mm")),
    Sketcher.Constraint("DistanceX", 0, 2, -1, 1, Q("15 mm")),
    Sketcher.Constraint("DistanceY", 0, 2, -1, 1, Q("82.777774 mm")),
])
pad10 = body.newObject("PartDesign::Pad", "Pad009")
pad10.Profile = sketch10
pad10.Length = 3
pad10.Reversed = True

# Sketch on YZ plane
sketch11 = body.newObject("Sketcher::SketchObject", "Sketch010")
sketch11.AttachmentSupport = (doc.getObject("YZ_Plane"), [""])
sketch11.MapMode = "FlatFace"
sketch11.AttachmentOffset = App.Placement(App.Vector(0, 0, -35), App.Rotation())
sketch11.addGeometry([
    Part.LineSegment(App.Vector(-37.5, -15, 0), App.Vector(-37.5, 15, 0)),
    Part.LineSegment(App.Vector(-37.5, 15, 0), App.Vector(-33.8, 15, 0)),
    Part.ArcOfCircle(Part.Circle(App.Vector(0, 0, 0), App.Vector(0, 0, 1), 37), math.radians(156), math.radians(204)),
    Part.LineSegment(App.Vector(-33.8, -15, 0), App.Vector(-37.5, -15, 0)),
], False)
sketch11.addConstraint([
    Sketcher.Constraint("Coincident", 0, 2, 1, 1),
    Sketcher.Constraint("Coincident", 1, 2, 2, 1),
    Sketcher.Constraint("Coincident", 2, 2, 3, 1),
    Sketcher.Constraint("Coincident", 3, 2, 0, 1),
    Sketcher.Constraint("Vertical", 0),
    Sketcher.Constraint("Horizontal", 1),
    Sketcher.Constraint("Horizontal", 3),
    Sketcher.Constraint("Coincident", 2, 3, -1, 1),
    Sketcher.Constraint("Vertical", 1, 2, 2, 2),
    Sketcher.Constraint("Radius", 2, Q("37 mm")),
    Sketcher.Constraint("DistanceY", 0, 1, 0, 2, Q("30 mm")),
    Sketcher.Constraint("DistanceX", 0, 2, -1, 1, Q("37.5 mm")),
])
pad11 = body.newObject("PartDesign::Pad", "Pad010")
pad11.Profile = sketch11
pad11.Length = 3

# Sketch on an angled plane
sketch12 = body.newObject("Sketcher::SketchObject", "Sketch011")
sketch12.Placement = App.Placement(App.Vector(42.655635, -13.74935, 0), App.Rotation(App.Vector(0, 0, -1), App.Vector(0.306789906, 0.95177726, 0), App.Vector(0.95177726, -0.306789906, 0), "ZXY"))
sketch12.addGeometry([
    Part.LineSegment(App.Vector(-15, -25, 0), App.Vector(-15, -77, 0)),
    Part.LineSegment(App.Vector(-15, -77, 0), App.Vector(15, -77, 0)),
    Part.LineSegment(App.Vector(15, -77, 0), App.Vector(15, -25, 0)),
    Part.LineSegment(App.Vector(15, -25, 0), App.Vector(-15, -25, 0)),
], False)
sketch12.addConstraint([
    Sketcher.Constraint("Coincident", 0, 2, 1, 1),
    Sketcher.Constraint("Coincident", 1, 2, 2, 1),
    Sketcher.Constraint("Coincident", 2, 2, 3, 1),
    Sketcher.Constraint("Coincident", 3, 2, 0, 1),
    Sketcher.Constraint("Vertical", 0),
    Sketcher.Constraint("Horizontal", 1),
    Sketcher.Constraint("Vertical", 2),
    Sketcher.Constraint("Horizontal", 3),
    Sketcher.Constraint("DistanceX", 1, 1, 1, 2, Q("30 mm")),
    Sketcher.Constraint("DistanceY", 0, 2, 0, 1, Q("52 mm")),
    Sketcher.Constraint("DistanceX", 0, 2, -1, 1, Q("15 mm")),
    Sketcher.Constraint("DistanceY", 0, 2, -1, 1, Q("76.954 mm")),
])
pad12 = body.newObject("PartDesign::Pad", "Pad011")
pad12.Profile = sketch12
pad12.Length = 3
pad12.Reversed = True

# Sketch on YZ plane
sketch13 = body.newObject("Sketcher::SketchObject", "Sketch012")
sketch13.AttachmentSupport = (doc.getObject("YZ_Plane"), [""])
sketch13.MapMode = "FlatFace"
sketch13.AttachmentOffset = App.Placement(App.Vector(0, 0, 35), App.Rotation())
sketch13.addGeometry([
    Part.LineSegment(App.Vector(-33.8, 15, 0), App.Vector(-37.5, 15, 0)),
    Part.LineSegment(App.Vector(-37.5, 15, 0), App.Vector(-37.5, -15, 0)),
    Part.LineSegment(App.Vector(-37.5, -15, 0), App.Vector(-33.8, -15, 0)),
    Part.ArcOfCircle(Part.Circle(App.Vector(0, 0, 0), App.Vector(0, 0, 1), 37), math.radians(156), math.radians(204)),
], False)
sketch13.addConstraint([
    Sketcher.Constraint("Coincident", 0, 2, 1, 1),
    Sketcher.Constraint("Coincident", 1, 2, 2, 1),
    Sketcher.Constraint("Coincident", 2, 2, 3, 2),
    Sketcher.Constraint("Coincident", 3, 1, 0, 1),
    Sketcher.Constraint("Horizontal", 0),
    Sketcher.Constraint("Vertical", 1),
    Sketcher.Constraint("Horizontal", 2),
    Sketcher.Constraint("Coincident", 3, 3, -1, 1),
    Sketcher.Constraint("Vertical", 2, 2, 3, 1),
    Sketcher.Constraint("Radius", 3, Q("37 mm")),
    Sketcher.Constraint("DistanceY", 1, 2, 1, 1, Q("30 mm")),
    Sketcher.Constraint("DistanceX", 0, 2, -1, 1, Q("37.5 mm")),
])
pad13 = body.newObject("PartDesign::Pad", "Pad012")
pad13.Profile = sketch13
pad13.Length = 3
pad13.Reversed = True

# Sketch on YZ plane
sketch14 = body.newObject("Sketcher::SketchObject", "Sketch013")
sketch14.AttachmentSupport = (doc.getObject("YZ_Plane"), [""])
sketch14.MapMode = "FlatFace"
sketch14.AttachmentOffset = App.Placement(App.Vector(0, 0, -21.9), App.Rotation())
sketch14.addGeometry([
    Part.LineSegment(App.Vector(31.7, -20, 0), App.Vector(58.2, -49.8, 0)),  # 0
    Part.ArcOfCircle(Part.Circle(App.Vector(50.7, -56.5, 0), App.Vector(0, 0, 1), 10), math.radians(-121), math.radians(42)),  # 1
    Part.LineSegment(App.Vector(45.5, -65, 0), App.Vector(0, -37.5, 0)),  # 2
    Part.ArcOfCircle(Part.Circle(App.Vector(0, 0, 0), App.Vector(0, 0, 1), 37.5), math.radians(-90), math.radians(-32)),  # 3
    Part.Circle(App.Vector(50.7, -56.5, 0), App.Vector(0, 0, 1), 3),  # 4
], False)
sketch14.addConstraint([
    Sketcher.Constraint("Tangent", 0, 2, 1, 2),
    Sketcher.Constraint("Tangent", 1, 1, 2, 1),
    Sketcher.Constraint("Coincident", 2, 2, 3, 1),
    Sketcher.Constraint("Coincident", 3, 2, 0, 1),
    Sketcher.Constraint("Coincident", 3, 3, -1, 1),
    Sketcher.Constraint("Coincident", 4, 3, 1, 3),
    Sketcher.Constraint("PointOnObject", 2, 2, -2),
    Sketcher.Constraint("Diameter", 4, Q("6 mm")),
    Sketcher.Constraint("Radius", 1, Q("10 mm")),
    Sketcher.Constraint("Radius", 3, Q("37.5 mm")),
    Sketcher.Constraint("DistanceY", 3, 2, -1, 1, Q("20 mm")),
    Sketcher.Constraint("Distance", 0, Q("39.863731 mm")),
    Sketcher.Constraint("Distance", 2, Q("53.171309 mm")),
])
pad14 = body.newObject("PartDesign::Pad", "Pad013")
pad14.Profile = sketch14
pad14.Length = 4
pad14.Reversed = True
body6 = doc.addObject("PartDesign::Body", "Body005")

# Sketch on XZ plane
sketch15 = body6.newObject("Sketcher::SketchObject", "Sketch014")
sketch15.AttachmentSupport = (doc.getObject("XZ_Plane005"), [""])
sketch15.MapMode = "FlatFace"
sketch15.addGeometry([
    Part.LineSegment(App.Vector(34, 38, 0), App.Vector(-34, 38, 0)),  # 0
    Part.LineSegment(App.Vector(-34, 38, 0), App.Vector(9, 86, 0)),  # 1
    Part.ArcOfCircle(Part.Circle(App.Vector(21, 76, 0), App.Vector(0, 0, 1), 15), math.radians(-2), math.radians(138)),  # 2
    Part.LineSegment(App.Vector(36, 76, 0), App.Vector(34, 38, 0)),  # 3
    Part.Circle(App.Vector(21, 76, 0), App.Vector(0, 0, 1), 5),  # 4
], False)
sketch15.addConstraint([
    Sketcher.Constraint("Coincident", 0, 2, 1, 1),
    Sketcher.Constraint("Tangent", 1, 2, 2, 2),
    Sketcher.Constraint("Tangent", 2, 1, 3, 1),
    Sketcher.Constraint("Coincident", 3, 2, 0, 1),
    Sketcher.Constraint("Horizontal", 0),
    Sketcher.Constraint("Coincident", 4, 3, 2, 3),
    Sketcher.Constraint("Radius", 2, Q("15 mm")),
    Sketcher.Constraint("Diameter", 4, Q("10.1 mm")),
    Sketcher.Constraint("DistanceX", 0, 2, 0, 1, Q("69 mm")),
    Sketcher.Constraint("DistanceX", 0, 2, -1, 1, Q("34.5 mm")),
    Sketcher.Constraint("DistanceY", -1, 1, 0, 2, Q("37.5 mm")),
    Sketcher.Constraint("Distance", 1, Q("65.634598 mm")),
    Sketcher.Constraint("Distance", 3, Q("38.387592 mm")),
])
pad15 = body6.newObject("PartDesign::Pad", "Pad014")
pad15.Profile = sketch15
pad15.Length = 3
pad15.Midplane = True

doc.recompute()
